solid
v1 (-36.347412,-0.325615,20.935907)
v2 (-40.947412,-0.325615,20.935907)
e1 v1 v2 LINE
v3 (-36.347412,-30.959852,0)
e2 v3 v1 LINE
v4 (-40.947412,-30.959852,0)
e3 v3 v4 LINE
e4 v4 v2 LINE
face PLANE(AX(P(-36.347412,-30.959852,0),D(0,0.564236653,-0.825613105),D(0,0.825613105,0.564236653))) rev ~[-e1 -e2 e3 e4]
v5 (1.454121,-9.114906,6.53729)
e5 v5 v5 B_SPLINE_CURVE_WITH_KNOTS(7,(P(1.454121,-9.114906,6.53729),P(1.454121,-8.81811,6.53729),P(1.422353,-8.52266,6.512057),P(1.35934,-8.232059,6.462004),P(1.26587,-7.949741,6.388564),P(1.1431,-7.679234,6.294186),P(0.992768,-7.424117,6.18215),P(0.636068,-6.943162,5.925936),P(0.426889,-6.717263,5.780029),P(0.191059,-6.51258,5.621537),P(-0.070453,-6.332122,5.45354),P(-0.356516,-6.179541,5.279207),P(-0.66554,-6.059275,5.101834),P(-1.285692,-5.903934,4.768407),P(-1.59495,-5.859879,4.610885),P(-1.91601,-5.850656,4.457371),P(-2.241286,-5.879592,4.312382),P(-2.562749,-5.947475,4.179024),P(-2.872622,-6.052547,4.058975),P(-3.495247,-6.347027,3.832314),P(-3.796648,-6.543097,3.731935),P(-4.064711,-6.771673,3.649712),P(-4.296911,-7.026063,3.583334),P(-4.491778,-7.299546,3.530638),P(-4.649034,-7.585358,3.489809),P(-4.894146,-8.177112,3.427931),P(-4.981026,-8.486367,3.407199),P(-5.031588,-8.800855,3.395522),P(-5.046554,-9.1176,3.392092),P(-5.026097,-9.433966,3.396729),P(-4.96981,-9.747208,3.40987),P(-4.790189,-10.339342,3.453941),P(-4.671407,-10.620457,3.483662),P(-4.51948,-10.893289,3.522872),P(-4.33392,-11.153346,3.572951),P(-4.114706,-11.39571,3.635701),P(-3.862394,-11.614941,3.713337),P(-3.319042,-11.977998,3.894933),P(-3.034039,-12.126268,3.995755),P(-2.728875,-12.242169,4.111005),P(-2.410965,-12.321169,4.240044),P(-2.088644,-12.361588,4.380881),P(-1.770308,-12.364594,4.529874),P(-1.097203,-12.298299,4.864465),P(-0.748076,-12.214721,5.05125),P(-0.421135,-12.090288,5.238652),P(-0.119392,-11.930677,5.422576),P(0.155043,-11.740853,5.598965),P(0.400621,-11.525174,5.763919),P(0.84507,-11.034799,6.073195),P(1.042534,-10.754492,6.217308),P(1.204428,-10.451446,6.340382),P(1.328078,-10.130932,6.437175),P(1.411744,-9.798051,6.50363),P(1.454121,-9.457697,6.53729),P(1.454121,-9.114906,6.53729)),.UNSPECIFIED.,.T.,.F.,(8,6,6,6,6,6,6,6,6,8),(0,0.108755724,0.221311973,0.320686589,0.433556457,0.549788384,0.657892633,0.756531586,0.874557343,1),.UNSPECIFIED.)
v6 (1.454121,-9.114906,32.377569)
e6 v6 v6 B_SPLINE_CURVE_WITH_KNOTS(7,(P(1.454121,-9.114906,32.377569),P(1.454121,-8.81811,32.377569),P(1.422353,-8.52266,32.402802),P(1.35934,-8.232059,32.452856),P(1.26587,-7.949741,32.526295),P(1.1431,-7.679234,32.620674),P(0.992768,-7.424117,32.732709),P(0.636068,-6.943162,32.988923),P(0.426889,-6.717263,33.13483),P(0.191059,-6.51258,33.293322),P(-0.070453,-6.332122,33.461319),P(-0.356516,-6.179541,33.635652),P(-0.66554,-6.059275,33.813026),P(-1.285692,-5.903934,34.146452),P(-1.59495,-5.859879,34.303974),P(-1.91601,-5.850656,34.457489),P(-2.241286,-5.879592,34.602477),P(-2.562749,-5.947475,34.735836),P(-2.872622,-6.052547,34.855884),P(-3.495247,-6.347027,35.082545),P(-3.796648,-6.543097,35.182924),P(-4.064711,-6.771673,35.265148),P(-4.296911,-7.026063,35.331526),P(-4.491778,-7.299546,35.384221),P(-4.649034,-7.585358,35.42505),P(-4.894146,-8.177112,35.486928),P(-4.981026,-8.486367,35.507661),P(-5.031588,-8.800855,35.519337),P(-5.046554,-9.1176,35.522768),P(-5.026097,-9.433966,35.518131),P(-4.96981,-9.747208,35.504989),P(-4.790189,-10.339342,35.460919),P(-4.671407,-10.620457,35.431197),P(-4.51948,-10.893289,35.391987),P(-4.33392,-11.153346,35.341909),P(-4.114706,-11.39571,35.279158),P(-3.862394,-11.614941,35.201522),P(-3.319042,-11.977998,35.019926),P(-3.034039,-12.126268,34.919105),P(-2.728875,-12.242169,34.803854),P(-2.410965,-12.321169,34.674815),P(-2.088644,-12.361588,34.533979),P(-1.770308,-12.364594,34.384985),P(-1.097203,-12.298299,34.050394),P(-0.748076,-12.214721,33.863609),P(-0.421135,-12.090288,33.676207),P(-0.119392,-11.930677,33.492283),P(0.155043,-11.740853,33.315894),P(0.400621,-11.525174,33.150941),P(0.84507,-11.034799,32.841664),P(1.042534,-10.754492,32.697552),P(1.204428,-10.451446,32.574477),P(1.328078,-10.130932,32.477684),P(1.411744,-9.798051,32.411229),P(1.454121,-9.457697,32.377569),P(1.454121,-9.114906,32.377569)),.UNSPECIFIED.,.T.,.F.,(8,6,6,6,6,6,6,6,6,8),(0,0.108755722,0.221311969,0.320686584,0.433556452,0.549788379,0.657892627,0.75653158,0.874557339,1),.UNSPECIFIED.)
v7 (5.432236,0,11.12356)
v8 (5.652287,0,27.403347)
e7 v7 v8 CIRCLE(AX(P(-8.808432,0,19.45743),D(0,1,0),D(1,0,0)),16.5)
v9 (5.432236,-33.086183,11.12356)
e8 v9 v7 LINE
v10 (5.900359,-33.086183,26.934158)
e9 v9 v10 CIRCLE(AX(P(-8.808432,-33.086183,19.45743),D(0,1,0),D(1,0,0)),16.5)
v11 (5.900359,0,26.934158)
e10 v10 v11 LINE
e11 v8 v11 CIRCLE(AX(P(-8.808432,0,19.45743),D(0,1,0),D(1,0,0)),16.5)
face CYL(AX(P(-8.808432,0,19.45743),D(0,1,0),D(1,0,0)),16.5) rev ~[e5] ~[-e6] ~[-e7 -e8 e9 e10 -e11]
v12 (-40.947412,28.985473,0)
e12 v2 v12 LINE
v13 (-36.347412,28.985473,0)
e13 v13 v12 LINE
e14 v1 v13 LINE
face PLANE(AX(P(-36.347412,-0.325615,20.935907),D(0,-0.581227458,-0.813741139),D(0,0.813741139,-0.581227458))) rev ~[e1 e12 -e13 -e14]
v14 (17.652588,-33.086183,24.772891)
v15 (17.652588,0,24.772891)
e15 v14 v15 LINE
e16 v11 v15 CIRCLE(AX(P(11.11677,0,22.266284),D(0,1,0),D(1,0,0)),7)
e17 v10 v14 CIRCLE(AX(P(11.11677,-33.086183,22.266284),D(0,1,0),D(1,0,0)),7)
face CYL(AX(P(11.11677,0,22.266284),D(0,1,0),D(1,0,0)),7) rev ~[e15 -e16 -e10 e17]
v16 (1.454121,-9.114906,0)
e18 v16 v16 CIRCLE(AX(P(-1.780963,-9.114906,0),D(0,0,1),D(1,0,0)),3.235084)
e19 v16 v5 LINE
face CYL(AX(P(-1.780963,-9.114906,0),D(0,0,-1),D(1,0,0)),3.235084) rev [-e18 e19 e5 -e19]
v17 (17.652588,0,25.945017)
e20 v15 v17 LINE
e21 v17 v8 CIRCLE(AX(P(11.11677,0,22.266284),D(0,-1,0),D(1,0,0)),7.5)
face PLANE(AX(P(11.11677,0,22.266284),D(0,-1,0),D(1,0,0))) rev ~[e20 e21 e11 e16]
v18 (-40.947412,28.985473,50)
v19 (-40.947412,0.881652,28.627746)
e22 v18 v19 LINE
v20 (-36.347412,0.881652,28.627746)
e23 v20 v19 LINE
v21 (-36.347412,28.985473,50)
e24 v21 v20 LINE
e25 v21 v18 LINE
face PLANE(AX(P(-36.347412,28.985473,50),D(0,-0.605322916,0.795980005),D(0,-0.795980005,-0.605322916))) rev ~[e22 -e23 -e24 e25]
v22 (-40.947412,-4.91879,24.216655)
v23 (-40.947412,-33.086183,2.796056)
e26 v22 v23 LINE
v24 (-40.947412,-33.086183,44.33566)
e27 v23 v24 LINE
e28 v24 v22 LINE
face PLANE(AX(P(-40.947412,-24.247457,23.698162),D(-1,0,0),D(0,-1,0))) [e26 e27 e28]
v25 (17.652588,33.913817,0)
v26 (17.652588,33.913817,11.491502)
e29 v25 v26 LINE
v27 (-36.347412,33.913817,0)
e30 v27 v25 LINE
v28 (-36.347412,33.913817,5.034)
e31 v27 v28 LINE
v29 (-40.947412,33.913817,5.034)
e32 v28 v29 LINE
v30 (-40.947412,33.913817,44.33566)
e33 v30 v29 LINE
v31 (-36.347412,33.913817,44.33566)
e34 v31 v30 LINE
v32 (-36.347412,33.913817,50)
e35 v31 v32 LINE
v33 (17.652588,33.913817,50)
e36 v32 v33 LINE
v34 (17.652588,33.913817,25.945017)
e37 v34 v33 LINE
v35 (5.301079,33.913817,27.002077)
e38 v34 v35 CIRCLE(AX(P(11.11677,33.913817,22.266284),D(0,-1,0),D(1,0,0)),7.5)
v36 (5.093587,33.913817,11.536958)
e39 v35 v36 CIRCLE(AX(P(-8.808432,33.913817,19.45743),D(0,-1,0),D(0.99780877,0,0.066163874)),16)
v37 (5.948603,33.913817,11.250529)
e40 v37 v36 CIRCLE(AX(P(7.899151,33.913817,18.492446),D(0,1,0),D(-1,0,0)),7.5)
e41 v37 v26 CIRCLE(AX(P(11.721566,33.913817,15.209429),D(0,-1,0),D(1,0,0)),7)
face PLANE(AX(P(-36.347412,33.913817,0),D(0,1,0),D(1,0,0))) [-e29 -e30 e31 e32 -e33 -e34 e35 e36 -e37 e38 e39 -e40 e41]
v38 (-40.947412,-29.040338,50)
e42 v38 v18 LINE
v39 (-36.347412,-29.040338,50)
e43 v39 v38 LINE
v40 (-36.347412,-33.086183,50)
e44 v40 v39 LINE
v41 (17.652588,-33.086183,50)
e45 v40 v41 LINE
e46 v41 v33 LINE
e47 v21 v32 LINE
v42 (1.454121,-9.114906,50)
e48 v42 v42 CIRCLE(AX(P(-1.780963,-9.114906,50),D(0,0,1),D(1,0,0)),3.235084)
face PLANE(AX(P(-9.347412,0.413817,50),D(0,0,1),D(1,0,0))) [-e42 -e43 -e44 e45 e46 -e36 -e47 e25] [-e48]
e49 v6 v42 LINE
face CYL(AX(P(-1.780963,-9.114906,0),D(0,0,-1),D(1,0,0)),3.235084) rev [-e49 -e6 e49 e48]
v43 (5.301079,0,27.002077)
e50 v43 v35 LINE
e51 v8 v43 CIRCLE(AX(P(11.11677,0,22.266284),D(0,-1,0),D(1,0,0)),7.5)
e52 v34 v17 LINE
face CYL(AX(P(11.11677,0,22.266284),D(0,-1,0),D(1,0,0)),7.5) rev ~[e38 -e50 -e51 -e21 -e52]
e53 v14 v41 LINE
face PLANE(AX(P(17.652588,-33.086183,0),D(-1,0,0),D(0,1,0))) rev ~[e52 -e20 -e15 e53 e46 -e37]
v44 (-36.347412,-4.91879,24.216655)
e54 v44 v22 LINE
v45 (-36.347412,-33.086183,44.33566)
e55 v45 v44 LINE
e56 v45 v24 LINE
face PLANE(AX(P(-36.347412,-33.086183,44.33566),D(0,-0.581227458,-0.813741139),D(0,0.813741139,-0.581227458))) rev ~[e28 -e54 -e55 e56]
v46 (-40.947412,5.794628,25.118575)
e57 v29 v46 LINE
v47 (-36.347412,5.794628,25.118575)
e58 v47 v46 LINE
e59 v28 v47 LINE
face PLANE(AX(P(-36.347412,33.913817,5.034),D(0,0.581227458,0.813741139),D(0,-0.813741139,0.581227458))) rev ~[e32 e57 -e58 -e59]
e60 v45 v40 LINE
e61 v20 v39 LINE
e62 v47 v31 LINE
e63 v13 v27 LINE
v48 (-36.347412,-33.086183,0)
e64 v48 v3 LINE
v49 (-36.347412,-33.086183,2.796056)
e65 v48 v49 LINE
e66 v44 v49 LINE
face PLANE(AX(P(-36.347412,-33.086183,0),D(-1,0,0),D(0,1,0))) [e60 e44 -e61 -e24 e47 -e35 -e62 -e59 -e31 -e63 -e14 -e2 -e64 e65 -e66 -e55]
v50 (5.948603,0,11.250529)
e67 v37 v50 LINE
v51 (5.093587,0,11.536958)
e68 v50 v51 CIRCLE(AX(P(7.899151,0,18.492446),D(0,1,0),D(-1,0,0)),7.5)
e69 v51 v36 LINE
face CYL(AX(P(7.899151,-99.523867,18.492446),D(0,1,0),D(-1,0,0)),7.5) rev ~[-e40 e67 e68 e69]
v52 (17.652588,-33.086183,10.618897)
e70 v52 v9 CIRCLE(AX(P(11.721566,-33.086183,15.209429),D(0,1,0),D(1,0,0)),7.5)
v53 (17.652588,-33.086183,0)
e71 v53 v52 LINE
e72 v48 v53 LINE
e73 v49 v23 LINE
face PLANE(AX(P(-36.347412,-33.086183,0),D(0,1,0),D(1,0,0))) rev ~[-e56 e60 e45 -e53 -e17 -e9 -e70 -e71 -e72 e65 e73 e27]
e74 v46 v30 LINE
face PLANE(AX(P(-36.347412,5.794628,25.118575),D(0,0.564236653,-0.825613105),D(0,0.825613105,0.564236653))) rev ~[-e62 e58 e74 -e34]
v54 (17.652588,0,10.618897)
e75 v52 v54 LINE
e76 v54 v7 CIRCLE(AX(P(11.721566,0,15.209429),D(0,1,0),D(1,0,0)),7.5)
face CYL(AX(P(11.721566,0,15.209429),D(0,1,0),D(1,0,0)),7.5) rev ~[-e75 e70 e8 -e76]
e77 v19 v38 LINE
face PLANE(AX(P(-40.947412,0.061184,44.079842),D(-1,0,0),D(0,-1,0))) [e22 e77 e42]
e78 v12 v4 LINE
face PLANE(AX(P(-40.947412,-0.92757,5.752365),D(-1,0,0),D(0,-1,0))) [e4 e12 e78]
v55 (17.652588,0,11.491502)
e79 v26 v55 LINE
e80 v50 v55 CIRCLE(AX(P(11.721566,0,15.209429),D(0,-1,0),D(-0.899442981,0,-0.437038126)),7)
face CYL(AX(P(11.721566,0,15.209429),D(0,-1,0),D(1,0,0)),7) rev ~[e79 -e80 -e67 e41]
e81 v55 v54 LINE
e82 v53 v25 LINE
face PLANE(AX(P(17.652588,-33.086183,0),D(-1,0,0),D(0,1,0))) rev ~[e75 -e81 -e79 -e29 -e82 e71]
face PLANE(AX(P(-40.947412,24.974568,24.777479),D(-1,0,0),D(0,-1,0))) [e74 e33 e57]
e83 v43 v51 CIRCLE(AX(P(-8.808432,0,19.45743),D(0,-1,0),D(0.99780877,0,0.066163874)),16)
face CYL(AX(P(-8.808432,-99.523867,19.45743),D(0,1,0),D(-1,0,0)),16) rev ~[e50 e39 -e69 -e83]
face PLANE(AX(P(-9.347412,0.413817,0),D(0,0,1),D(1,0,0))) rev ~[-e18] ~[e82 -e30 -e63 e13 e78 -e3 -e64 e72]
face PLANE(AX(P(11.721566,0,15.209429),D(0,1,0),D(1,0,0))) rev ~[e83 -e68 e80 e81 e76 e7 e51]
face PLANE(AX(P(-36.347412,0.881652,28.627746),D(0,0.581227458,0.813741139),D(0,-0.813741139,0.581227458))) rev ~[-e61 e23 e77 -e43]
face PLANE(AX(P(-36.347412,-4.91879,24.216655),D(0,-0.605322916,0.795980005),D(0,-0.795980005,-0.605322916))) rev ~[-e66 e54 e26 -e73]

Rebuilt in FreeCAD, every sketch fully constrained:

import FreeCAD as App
import Part
import Sketcher
from FreeCAD import Vector

doc = App.newDocument("Part")
params = doc.addObject("Spreadsheet::Sheet", "Params")
for row, (alias, value) in enumerate([
    ("sketch1_width", "54 mm"),
    ("sketch1_height", "67 mm"),
    ("pad1_length", "50 mm"),
    ("sketch2_diameter", "33 mm"),
    ("sketch3_diameter", "32 mm"),
    ("hole_diameter", "32 mm"),
    ("sketch4_diameter", "14 mm"),
    ("sketch5_diameter", "14 mm"),
    ("sketch6_diameter", "14 mm"),
    ("sketch7_diameter", "15 mm"),
    ("sketch8_diameter", "15 mm"),
    ("hole2_diameter", "15 mm"),
    ("sketch9_diameter", "15 mm"),
    ("pad2_length", "4.6 mm"),
], start=1):
    params.set(f"A{row}", alias)
    params.set(f"B{row}", "=" + value)
    params.setAlias(f"B{row}", alias)

body = doc.addObject("PartDesign::Body", "Body")

# Sketch on XY plane
sketch1 = doc.addObject("Sketcher::SketchObject", "Sketch")
body.addObject(sketch1)
sketch1.AttachmentSupport = (doc.XY_Plane, [""])
sketch1.MapMode = "FlatFace"
sketch1.addGeometry([
    Part.LineSegment(Vector(-36.3, 33.9, 0), Vector(-36.3, -33.1, 0)),  # 0
    Part.LineSegment(Vector(-36.3, -33.1, 0), Vector(17.7, -33.1, 0)),  # 1
    Part.LineSegment(Vector(17.7, -33.1, 0), Vector(17.7, 33.9, 0)),  # 2
    Part.LineSegment(Vector(17.7, 33.9, 0), Vector(-36.3, 33.9, 0)),  # 3
    Part.Circle(Vector(-1.8, -9.1, 0), Vector(0, 0, 1), 3.2),  # 4
], False)
sketch1.addConstraint([
    Sketcher.Constraint("Coincident", 0, 2, 1, 1),
    Sketcher.Constraint("Coincident", 1, 2, 2, 1),
    Sketcher.Constraint("Coincident", 2, 2, 3, 1),
    Sketcher.Constraint("Coincident", 3, 2, 0, 1),
    Sketcher.Constraint("Vertical", 0),
    Sketcher.Constraint("Horizontal", 1),
    Sketcher.Constraint("Vertical", 2),
    Sketcher.Constraint("Horizontal", 3),
    Sketcher.Constraint("DistanceX", 1, 1, 1, 2, 54.0),
    Sketcher.Constraint("DistanceY", 0, 2, 0, 1, 67.0),
    Sketcher.Constraint("Diameter", 4, 6.470168),
    Sketcher.Constraint("DistanceX", 0, 2, -1, 1, 36.347412),
    Sketcher.Constraint("DistanceX", 0, 2, 4, 3, 34.566448),
    Sketcher.Constraint("DistanceY", 4, 3, -1, 1, 9.114906),
    Sketcher.Constraint("DistanceY", 0, 2, -1, 1, 33.086183),
])
sketch1.setExpression("Constraints[8]", "Params.sketch1_width")
sketch1.setExpression("Constraints[9]", "Params.sketch1_height")
pad1 = doc.addObject("PartDesign::Pad", "Pad")
body.addObject(pad1)
pad1.Profile = sketch1
pad1.setExpression("Length", "Params.pad1_length")

# Sketch on XZ plane
sketch2 = doc.addObject("Sketcher::SketchObject", "Sketch001")
body.addObject(sketch2)
sketch2.AttachmentSupport = (doc.XZ_Plane, [""])
sketch2.MapMode = "FlatFace"
sketch2.addGeometry(Part.Circle(Vector(-9, 19, 0), Vector(0, 0, 1), 16), False)
sketch2.addConstraint([
    Sketcher.Constraint("Diameter", 0, 33.0),
    Sketcher.Constraint("DistanceY", -1, 1, 0, 3, 19.45743),
    Sketcher.Constraint("DistanceX", 0, 3, -1, 1, 8.808432),
])
sketch2.setExpression("Constraints[0]", "Params.sketch2_diameter")
pocket1 = doc.addObject("PartDesign::Pocket", "Pocket")
body.addObject(pocket1)
pocket1.Profile = sketch2
pocket1.Type = "ThroughAll"
pocket1.Reversed = True

# Sketch on XZ plane
sketch3 = doc.addObject("Sketcher::SketchObject", "Sketch002")
body.addObject(sketch3)
sketch3.AttachmentSupport = (doc.XZ_Plane, [""])
sketch3.MapMode = "FlatFace"
sketch3.addGeometry(Part.Circle(Vector(-9, 19, 0), Vector(0, 0, 1), 16), False)
sketch3.addConstraint([
    Sketcher.Constraint("Diameter", 0, 32.0),
    Sketcher.Constraint("DistanceY", -1, 1, 0, 3, 19.45743),
    Sketcher.Constraint("DistanceX", 0, 3, -1, 1, 8.808432),
])
sketch3.setExpression("Constraints[0]", "Params.sketch3_diameter")
doc.recompute()
hole = doc.addObject("PartDesign::Hole", "Hole")
body.addObject(hole)
hole.Profile = sketch3
hole.ThreadType = "None"
hole.setExpression("Diameter", "Params.hole_diameter")
hole.DepthType = "ThroughAll"

# Sketch on XZ plane
sketch4 = doc.addObject("Sketcher::SketchObject", "Sketch003")
body.addObject(sketch4)
sketch4.AttachmentSupport = (doc.XZ_Plane, [""])
sketch4.MapMode = "FlatFace"
sketch4.addGeometry(Part.Circle(Vector(11, 22, 0), Vector(0, 0, 1), 7), False)
sketch4.addConstraint([
    Sketcher.Constraint("Diameter", 0, 14.0),
    Sketcher.Constraint("DistanceX", -1, 1, 0, 3, 11.11677),
    Sketcher.Constraint("DistanceY", -1, 1, 0, 3, 22.266284),
])
sketch4.setExpression("Constraints[0]", "Params.sketch4_diameter")
pocket2 = doc.addObject("PartDesign::Pocket", "Pocket001")
body.addObject(pocket2)
pocket2.Profile = sketch4
pocket2.Type = "ThroughAll"
pocket2.Reversed = True

# Sketch on XZ plane
sketch5 = doc.addObject("Sketcher::SketchObject", "Sketch004")
body.addObject(sketch5)
sketch5.AttachmentSupport = (doc.XZ_Plane, [""])
sketch5.MapMode = "FlatFace"
sketch5.addGeometry(Part.Circle(Vector(12, 15, 0), Vector(0, 0, 1), 7), False)
sketch5.addConstraint([
    Sketcher.Constraint("Diameter", 0, 14.0),
    Sketcher.Constraint("DistanceY", -1, 1, 0, 3, 15.209429),
    Sketcher.Constraint("DistanceX", -1, 1, 0, 3, 11.721566),
])
sketch5.setExpression("Constraints[0]", "Params.sketch5_diameter")
pocket3 = doc.addObject("PartDesign::Pocket", "Pocket002")
body.addObject(pocket3)
pocket3.Profile = sketch5
pocket3.Type = "ThroughAll"

# Sketch on XZ plane
sketch6 = doc.addObject("Sketcher::SketchObject", "Sketch005")
body.addObject(sketch6)
sketch6.AttachmentSupport = (doc.XZ_Plane, [""])
sketch6.MapMode = "FlatFace"
sketch6.addGeometry(Part.Circle(Vector(8, 18, 0), Vector(0, 0, 1), 7), False)
sketch6.addConstraint([
    Sketcher.Constraint("Diameter", 0, 14.0),
    Sketcher.Constraint("DistanceX", -1, 1, 0, 3, 7.899151),
    Sketcher.Constraint("DistanceY", -1, 1, 0, 3, 18.492446),
])
sketch6.setExpression("Constraints[0]", "Params.sketch6_diameter")
pocket4 = doc.addObject("PartDesign::Pocket", "Pocket003")
body.addObject(pocket4)
pocket4.Profile = sketch6
pocket4.Type = "ThroughAll"
pocket4.Reversed = True

# Sketch on XZ plane
sketch7 = doc.addObject("Sketcher::SketchObject", "Sketch006")
body.addObject(sketch7)
sketch7.AttachmentSupport = (doc.XZ_Plane, [""])
sketch7.MapMode = "FlatFace"
sketch7.addGeometry(Part.Circle(Vector(12, 15, 0), Vector(0, 0, 1), 8), False)
sketch7.addConstraint([
    Sketcher.Constraint("Diameter", 0, 15.0),
    Sketcher.Constraint("DistanceY", -1, 1, 0, 3, 15.209429),
    Sketcher.Constraint("DistanceX", -1, 1, 0, 3, 11.721566),
])
sketch7.setExpression("Constraints[0]", "Params.sketch7_diameter")
pocket5 = doc.addObject("PartDesign::Pocket", "Pocket004")
body.addObject(pocket5)
pocket5.Profile = sketch7
pocket5.Type = "ThroughAll"
pocket5.Reversed = True

# Sketch on XZ plane
sketch8 = doc.addObject("Sketcher::SketchObject", "Sketch007")
body.addObject(sketch8)
sketch8.AttachmentSupport = (doc.XZ_Plane, [""])
sketch8.MapMode = "FlatFace"
sketch8.addGeometry(Part.Circle(Vector(8, 18, 0), Vector(0, 0, 1), 8), False)
sketch8.addConstraint([
    Sketcher.Constraint("Diameter", 0, 15.0),
    Sketcher.Constraint("DistanceX", -1, 1, 0, 3, 7.899151),
    Sketcher.Constraint("DistanceY", -1, 1, 0, 3, 18.492446),
])
sketch8.setExpression("Constraints[0]", "Params.sketch8_diameter")
doc.recompute()
hole2 = doc.addObject("PartDesign::Hole", "Hole001")
body.addObject(hole2)
hole2.Profile = sketch8
hole2.ThreadType = "None"
hole2.setExpression("Diameter", "Params.hole2_diameter")
hole2.DepthType = "ThroughAll"

# Sketch on XZ plane
sketch9 = doc.addObject("Sketcher::SketchObject", "Sketch008")
body.addObject(sketch9)
sketch9.AttachmentSupport = (doc.XZ_Plane, [""])
sketch9.MapMode = "FlatFace"
sketch9.addGeometry(Part.Circle(Vector(11, 22, 0), Vector(0, 0, 1), 8), False)
sketch9.addConstraint([
    Sketcher.Constraint("Diameter", 0, 15.0),
    Sketcher.Constraint("DistanceX", -1, 1, 0, 3, 11.11677),
    Sketcher.Constraint("DistanceY", -1, 1, 0, 3, 22.266284),
])
sketch9.setExpression("Constraints[0]", "Params.sketch9_diameter")
pocket6 = doc.addObject("PartDesign::Pocket", "Pocket005")
body.addObject(pocket6)
pocket6.Profile = sketch9
pocket6.Type = "ThroughAll"

# Sketch on YZ plane
sketch10 = doc.addObject("Sketcher::SketchObject", "Sketch009")
body.addObject(sketch10)
sketch10.AttachmentSupport = (doc.YZ_Plane, [""])
sketch10.MapMode = "FlatFace"
sketch10.AttachmentOffset = App.Placement(Vector(0, 0, -36.347412), App.Rotation())
sketch10.addGeometry([
    Part.LineSegment(Vector(29, 50, 0), Vector(1, 29, 0)),  # 0
    Part.LineSegment(Vector(1, 29, 0), Vector(-29, 50, 0)),  # 1
    Part.LineSegment(Vector(-29, 50, 0), Vector(29, 50, 0)),  # 2
    Part.LineSegment(Vector(34, 44, 0), Vector(34, 5, 0)),  # 3
    Part.LineSegment(Vector(34, 5, 0), Vector(6, 25, 0)),  # 4
    Part.LineSegment(Vector(6, 25, 0), Vector(34, 44, 0)),  # 5
    Part.LineSegment(Vector(-33, 44, 0), Vector(-5, 24, 0)),  # 6
    Part.LineSegment(Vector(-5, 24, 0), Vector(-33, 3, 0)),  # 7
    Part.LineSegment(Vector(-33, 3, 0), Vector(-33, 44, 0)),  # 8
    Part.LineSegment(Vector(0, 21, 0), Vector(29, 0, 0)),  # 9
    Part.LineSegment(Vector(29, 0, 0), Vector(-31, 0, 0)),  # 10
    Part.LineSegment(Vector(-31, 0, 0), Vector(0, 21, 0)),  # 11
], False)
sketch10.addConstraint([
    Sketcher.Constraint("Coincident", 0, 2, 1, 1),
    Sketcher.Constraint("Coincident", 1, 2, 2, 1),
    Sketcher.Constraint("Coincident", 2, 2, 0, 1),
    Sketcher.Constraint("Coincident", 3, 2, 4, 1),
    Sketcher.Constraint("Coincident", 4, 2, 5, 1),
    Sketcher.Constraint("Coincident", 5, 2, 3, 1),
    Sketcher.Constraint("Coincident", 6, 2, 7, 1),
    Sketcher.Constraint("Coincident", 7, 2, 8, 1),
    Sketcher.Constraint("Coincident", 8, 2, 6, 1),
    Sketcher.Constraint("Coincident", 9, 2, 10, 1),
    Sketcher.Constraint("Coincident", 10, 2, 11, 1),
    Sketcher.Constraint("Coincident", 11, 2, 9, 1),
    Sketcher.Constraint("Horizontal", 2),
    Sketcher.Constraint("Vertical", 3),
    Sketcher.Constraint("Vertical", 8),
    Sketcher.Constraint("Horizontal", 10),
    Sketcher.Constraint("PointOnObject", 9, 2, -1),
    Sketcher.Constraint("Parallel", 1, 4),
    Sketcher.Constraint("Parallel", 4, 6),
    Sketcher.Constraint("Parallel", 0, 7),
    Sketcher.Constraint("Parallel", 6, 9),
    Sketcher.Constraint("Parallel", 5, 11),
    Sketcher.Constraint("Horizontal", 5, 2, 8, 2),
    Sketcher.Constraint("Vertical", 2, 2, 9, 2),
    Sketcher.Constraint("DistanceY", -1, 1, 1, 2, 50.0),
    Sketcher.Constraint("DistanceX", 7, 2, 3, 2, 67.0),
    Sketcher.Constraint("DistanceY", -1, 1, 3, 2, 5.034),
    Sketcher.Constraint("DistanceX", 2, 1, 2, 2, 58.025811),
    Sketcher.Constraint("DistanceY", 3, 2, 3, 1, 39.30166),
    Sketcher.Constraint("DistanceY", 7, 2, 6, 2, 21.420599),
    Sketcher.Constraint("Distance", 7, 35.387061),
    Sketcher.Constraint("DistanceX", 10, 2, 10, 1, 59.945325),
    Sketcher.Constraint("DistanceY", 8, 1, 8, 2, 41.539604),
    Sketcher.Constraint("DistanceX", -1, 1, 0, 2, 0.881652),
    Sketcher.Constraint("DistanceX", -1, 1, 4, 2, 5.794628),
    Sketcher.Constraint("DistanceX", 6, 2, -1, 1, 4.91879),
])
pad2 = doc.addObject("PartDesign::Pad", "Pad001")
body.addObject(pad2)
pad2.Profile = sketch10
pad2.setExpression("Length", "Params.pad2_length")
pad2.Reversed = True

doc.recompute()
